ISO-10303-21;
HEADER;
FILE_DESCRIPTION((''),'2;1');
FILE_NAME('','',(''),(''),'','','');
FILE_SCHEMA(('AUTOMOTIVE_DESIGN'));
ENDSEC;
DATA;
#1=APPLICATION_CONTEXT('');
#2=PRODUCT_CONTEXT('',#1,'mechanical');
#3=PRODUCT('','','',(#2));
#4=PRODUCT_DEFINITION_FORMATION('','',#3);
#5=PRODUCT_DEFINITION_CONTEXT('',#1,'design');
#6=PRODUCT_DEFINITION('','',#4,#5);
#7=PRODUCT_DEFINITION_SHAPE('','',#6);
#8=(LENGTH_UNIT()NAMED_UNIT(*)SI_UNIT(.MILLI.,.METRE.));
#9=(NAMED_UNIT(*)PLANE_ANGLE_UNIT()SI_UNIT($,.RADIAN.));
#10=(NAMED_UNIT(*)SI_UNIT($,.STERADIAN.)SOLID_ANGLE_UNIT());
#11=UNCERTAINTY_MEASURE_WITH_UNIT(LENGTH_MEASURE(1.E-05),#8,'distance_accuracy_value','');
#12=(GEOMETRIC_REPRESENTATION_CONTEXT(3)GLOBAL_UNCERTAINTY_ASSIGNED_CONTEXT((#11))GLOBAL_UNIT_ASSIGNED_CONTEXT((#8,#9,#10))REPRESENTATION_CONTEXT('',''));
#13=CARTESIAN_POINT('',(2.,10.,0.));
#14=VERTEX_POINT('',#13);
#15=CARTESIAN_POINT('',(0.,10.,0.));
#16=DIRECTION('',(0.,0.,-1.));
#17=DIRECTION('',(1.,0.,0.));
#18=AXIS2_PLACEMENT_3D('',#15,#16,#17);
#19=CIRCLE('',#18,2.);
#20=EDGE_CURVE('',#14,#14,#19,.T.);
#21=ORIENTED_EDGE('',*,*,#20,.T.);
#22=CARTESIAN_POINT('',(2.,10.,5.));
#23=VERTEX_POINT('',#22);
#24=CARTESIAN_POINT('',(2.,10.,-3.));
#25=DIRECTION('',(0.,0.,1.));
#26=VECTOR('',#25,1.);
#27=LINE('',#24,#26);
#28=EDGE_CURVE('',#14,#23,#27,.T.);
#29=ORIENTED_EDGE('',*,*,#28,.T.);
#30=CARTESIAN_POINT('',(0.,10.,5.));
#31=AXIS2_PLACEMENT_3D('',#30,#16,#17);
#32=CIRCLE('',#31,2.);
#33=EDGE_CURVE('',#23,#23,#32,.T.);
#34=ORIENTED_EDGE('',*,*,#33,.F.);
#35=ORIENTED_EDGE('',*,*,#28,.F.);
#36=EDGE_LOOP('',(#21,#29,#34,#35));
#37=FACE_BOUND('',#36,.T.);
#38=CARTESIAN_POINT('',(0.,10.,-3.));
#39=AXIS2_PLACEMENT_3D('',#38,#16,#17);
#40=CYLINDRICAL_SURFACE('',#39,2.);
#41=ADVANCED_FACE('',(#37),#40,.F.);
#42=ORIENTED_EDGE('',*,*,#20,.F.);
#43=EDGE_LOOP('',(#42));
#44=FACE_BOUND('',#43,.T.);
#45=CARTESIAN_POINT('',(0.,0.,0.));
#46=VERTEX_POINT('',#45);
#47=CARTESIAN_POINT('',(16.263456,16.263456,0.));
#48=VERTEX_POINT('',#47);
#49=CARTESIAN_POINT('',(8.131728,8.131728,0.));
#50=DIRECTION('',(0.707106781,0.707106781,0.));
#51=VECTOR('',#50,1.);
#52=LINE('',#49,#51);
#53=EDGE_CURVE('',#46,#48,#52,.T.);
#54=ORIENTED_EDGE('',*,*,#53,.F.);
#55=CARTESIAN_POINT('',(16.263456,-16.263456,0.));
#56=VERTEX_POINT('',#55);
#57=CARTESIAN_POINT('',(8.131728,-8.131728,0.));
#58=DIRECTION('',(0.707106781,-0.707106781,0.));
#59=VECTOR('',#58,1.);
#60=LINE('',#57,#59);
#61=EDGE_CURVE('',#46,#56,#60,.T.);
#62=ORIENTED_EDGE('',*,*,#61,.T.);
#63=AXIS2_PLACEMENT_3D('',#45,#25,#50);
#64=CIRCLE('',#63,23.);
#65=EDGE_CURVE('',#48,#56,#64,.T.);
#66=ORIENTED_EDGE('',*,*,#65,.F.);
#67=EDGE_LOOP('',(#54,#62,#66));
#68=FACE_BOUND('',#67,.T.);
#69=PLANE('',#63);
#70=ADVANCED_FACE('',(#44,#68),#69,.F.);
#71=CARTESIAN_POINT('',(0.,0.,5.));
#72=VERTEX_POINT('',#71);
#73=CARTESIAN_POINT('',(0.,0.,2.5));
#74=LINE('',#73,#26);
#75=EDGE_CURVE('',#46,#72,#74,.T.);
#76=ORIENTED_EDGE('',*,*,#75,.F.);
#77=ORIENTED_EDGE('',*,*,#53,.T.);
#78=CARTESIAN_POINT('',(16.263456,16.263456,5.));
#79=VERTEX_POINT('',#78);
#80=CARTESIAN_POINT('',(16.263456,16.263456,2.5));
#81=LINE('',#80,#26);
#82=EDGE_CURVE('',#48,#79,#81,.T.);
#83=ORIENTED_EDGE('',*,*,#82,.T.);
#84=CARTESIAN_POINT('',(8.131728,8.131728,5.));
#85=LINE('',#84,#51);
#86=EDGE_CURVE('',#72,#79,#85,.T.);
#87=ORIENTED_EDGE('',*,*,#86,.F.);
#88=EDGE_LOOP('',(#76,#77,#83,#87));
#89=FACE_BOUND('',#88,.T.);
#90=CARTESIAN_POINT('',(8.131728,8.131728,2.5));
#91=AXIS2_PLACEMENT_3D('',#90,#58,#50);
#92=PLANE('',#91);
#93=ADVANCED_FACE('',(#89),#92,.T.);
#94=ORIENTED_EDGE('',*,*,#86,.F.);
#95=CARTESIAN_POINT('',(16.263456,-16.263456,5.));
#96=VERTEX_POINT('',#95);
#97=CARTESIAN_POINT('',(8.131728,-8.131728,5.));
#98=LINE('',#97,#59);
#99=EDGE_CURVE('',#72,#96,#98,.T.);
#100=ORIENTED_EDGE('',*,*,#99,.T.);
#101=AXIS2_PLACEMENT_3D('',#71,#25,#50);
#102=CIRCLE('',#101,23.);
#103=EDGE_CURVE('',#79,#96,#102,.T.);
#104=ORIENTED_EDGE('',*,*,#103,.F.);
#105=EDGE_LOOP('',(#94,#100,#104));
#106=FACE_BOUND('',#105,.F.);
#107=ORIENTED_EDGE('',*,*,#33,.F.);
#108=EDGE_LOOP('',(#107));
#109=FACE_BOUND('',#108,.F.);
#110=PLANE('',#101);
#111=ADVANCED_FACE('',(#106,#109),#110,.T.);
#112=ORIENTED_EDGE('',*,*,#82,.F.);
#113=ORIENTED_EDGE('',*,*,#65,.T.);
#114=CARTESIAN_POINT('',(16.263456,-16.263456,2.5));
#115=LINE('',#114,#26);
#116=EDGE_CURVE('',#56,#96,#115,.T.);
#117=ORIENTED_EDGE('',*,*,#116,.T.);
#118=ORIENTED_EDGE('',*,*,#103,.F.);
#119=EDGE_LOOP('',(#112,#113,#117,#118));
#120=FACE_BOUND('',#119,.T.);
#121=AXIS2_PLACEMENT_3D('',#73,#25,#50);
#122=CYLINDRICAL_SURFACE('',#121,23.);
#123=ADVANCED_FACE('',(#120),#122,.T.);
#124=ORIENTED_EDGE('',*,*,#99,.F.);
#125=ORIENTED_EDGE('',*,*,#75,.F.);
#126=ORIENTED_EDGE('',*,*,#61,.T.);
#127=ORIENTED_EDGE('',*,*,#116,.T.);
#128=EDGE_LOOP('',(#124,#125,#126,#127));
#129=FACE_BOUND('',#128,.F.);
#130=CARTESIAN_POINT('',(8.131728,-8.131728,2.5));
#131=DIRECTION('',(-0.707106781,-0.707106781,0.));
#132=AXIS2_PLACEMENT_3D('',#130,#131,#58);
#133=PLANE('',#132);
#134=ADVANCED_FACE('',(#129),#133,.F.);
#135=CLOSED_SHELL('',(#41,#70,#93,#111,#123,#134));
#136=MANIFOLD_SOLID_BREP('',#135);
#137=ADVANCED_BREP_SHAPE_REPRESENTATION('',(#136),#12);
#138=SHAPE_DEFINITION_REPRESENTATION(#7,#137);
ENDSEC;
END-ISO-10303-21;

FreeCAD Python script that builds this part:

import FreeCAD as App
import Part
import Sketcher
from FreeCAD import Vector

doc = App.newDocument("Part")
params = doc.addObject("Spreadsheet::Sheet", "Params")
for row, (alias, value) in enumerate([
    ("sketch1_diameter", "4 mm"),
    ("pad1_length", "10 mm"),
    ("sketch2_width", "23 mm"),
    ("sketch2_height", "5 mm"),
    ("revolution_angle", "270 deg"),
], start=1):
    params.set(f"A{row}", alias)
    params.set(f"B{row}", "=" + value)
    params.setAlias(f"B{row}", alias)

body = doc.addObject("PartDesign::Body", "Body")

sketch1 = body.newObject("Sketcher::SketchObject", "Sketch")
sketch1.AttachmentSupport = (doc.getObject("XY_Plane"), [""])
sketch1.MapMode = "FlatFace"
sketch1.AttachmentOffset = App.Placement(Vector(0, 0, -3), App.Rotation())
sketch1.addGeometry(Part.Circle(Vector(0, 10, 0), Vector(0, 0, 1), 2), False)
sketch1.addConstraint([
    Sketcher.Constraint("PointOnObject", 0, 3, -2),
    Sketcher.Constraint("Diameter", 0, 4.0),
    Sketcher.Constraint("DistanceY", -1, 1, 0, 3, 10.0),
])
sketch1.setExpression("Constraints[1]", "Params.sketch1_diameter")
pad1 = body.newObject("PartDesign::Pad", "Pad")
pad1.Profile = sketch1
pad1.setExpression("Length", "Params.pad1_length")
body2 = doc.addObject("PartDesign::Body", "Body001")

sketch2 = body2.newObject("Sketcher::SketchObject", "Sketch001")
sketch2.AttachmentSupport = (doc.getObject("XZ_Plane001"), [""])
sketch2.MapMode = "FlatFace"
sketch2.addGeometry([
    Part.LineSegment(Vector(0, 5, 0), Vector(0, 0, 0)),
    Part.LineSegment(Vector(0, 0, 0), Vector(23, 0, 0)),
    Part.LineSegment(Vector(23, 0, 0), Vector(23, 5, 0)),
    Part.LineSegment(Vector(23, 5, 0), Vector(0, 5, 0)),
], False)
sketch2.addConstraint([
    Sketcher.Constraint("Coincident", 0, 2, 1, 1),
    Sketcher.Constraint("Coincident", 1, 2, 2, 1),
    Sketcher.Constraint("Coincident", 2, 2, 3, 1),
    Sketcher.Constraint("Coincident", 3, 2, 0, 1),
    Sketcher.Constraint("Vertical", 0),
    Sketcher.Constraint("Horizontal", 1),
    Sketcher.Constraint("Vertical", 2),
    Sketcher.Constraint("Horizontal", 3),
    Sketcher.Constraint("Coincident", 0, 2, -1, 1),
    Sketcher.Constraint("DistanceX", 1, 1, 1, 2, 23.0),
    Sketcher.Constraint("DistanceY", 0, 2, 0, 1, 5.0),
])
sketch2.setExpression("Constraints[9]", "Params.sketch2_width")
sketch2.setExpression("Constraints[10]", "Params.sketch2_height")
revolution = body2.newObject("PartDesign::Revolution", "Revolution")
revolution.Profile = sketch2
revolution.ReferenceAxis = (sketch2, ["V_Axis"])
revolution.setExpression("Angle", "Params.revolution_angle")
body3 = doc.addObject("PartDesign::Body", "Body002")
doc.recompute()

body2.Placement = App.Placement(Vector(0, 0, 0), App.Rotation(Vector(0, 0, 1), 45))
boolean = body3.newObject("PartDesign::Boolean", "Boolean")
boolean.Type = "Fuse"
boolean.addObjects([body2])
doc.recompute()

boolean2 = body3.newObject("PartDesign::Boolean", "Boolean001")
boolean2.Type = "Cut"
boolean2.addObjects([body])

doc.recompute()
